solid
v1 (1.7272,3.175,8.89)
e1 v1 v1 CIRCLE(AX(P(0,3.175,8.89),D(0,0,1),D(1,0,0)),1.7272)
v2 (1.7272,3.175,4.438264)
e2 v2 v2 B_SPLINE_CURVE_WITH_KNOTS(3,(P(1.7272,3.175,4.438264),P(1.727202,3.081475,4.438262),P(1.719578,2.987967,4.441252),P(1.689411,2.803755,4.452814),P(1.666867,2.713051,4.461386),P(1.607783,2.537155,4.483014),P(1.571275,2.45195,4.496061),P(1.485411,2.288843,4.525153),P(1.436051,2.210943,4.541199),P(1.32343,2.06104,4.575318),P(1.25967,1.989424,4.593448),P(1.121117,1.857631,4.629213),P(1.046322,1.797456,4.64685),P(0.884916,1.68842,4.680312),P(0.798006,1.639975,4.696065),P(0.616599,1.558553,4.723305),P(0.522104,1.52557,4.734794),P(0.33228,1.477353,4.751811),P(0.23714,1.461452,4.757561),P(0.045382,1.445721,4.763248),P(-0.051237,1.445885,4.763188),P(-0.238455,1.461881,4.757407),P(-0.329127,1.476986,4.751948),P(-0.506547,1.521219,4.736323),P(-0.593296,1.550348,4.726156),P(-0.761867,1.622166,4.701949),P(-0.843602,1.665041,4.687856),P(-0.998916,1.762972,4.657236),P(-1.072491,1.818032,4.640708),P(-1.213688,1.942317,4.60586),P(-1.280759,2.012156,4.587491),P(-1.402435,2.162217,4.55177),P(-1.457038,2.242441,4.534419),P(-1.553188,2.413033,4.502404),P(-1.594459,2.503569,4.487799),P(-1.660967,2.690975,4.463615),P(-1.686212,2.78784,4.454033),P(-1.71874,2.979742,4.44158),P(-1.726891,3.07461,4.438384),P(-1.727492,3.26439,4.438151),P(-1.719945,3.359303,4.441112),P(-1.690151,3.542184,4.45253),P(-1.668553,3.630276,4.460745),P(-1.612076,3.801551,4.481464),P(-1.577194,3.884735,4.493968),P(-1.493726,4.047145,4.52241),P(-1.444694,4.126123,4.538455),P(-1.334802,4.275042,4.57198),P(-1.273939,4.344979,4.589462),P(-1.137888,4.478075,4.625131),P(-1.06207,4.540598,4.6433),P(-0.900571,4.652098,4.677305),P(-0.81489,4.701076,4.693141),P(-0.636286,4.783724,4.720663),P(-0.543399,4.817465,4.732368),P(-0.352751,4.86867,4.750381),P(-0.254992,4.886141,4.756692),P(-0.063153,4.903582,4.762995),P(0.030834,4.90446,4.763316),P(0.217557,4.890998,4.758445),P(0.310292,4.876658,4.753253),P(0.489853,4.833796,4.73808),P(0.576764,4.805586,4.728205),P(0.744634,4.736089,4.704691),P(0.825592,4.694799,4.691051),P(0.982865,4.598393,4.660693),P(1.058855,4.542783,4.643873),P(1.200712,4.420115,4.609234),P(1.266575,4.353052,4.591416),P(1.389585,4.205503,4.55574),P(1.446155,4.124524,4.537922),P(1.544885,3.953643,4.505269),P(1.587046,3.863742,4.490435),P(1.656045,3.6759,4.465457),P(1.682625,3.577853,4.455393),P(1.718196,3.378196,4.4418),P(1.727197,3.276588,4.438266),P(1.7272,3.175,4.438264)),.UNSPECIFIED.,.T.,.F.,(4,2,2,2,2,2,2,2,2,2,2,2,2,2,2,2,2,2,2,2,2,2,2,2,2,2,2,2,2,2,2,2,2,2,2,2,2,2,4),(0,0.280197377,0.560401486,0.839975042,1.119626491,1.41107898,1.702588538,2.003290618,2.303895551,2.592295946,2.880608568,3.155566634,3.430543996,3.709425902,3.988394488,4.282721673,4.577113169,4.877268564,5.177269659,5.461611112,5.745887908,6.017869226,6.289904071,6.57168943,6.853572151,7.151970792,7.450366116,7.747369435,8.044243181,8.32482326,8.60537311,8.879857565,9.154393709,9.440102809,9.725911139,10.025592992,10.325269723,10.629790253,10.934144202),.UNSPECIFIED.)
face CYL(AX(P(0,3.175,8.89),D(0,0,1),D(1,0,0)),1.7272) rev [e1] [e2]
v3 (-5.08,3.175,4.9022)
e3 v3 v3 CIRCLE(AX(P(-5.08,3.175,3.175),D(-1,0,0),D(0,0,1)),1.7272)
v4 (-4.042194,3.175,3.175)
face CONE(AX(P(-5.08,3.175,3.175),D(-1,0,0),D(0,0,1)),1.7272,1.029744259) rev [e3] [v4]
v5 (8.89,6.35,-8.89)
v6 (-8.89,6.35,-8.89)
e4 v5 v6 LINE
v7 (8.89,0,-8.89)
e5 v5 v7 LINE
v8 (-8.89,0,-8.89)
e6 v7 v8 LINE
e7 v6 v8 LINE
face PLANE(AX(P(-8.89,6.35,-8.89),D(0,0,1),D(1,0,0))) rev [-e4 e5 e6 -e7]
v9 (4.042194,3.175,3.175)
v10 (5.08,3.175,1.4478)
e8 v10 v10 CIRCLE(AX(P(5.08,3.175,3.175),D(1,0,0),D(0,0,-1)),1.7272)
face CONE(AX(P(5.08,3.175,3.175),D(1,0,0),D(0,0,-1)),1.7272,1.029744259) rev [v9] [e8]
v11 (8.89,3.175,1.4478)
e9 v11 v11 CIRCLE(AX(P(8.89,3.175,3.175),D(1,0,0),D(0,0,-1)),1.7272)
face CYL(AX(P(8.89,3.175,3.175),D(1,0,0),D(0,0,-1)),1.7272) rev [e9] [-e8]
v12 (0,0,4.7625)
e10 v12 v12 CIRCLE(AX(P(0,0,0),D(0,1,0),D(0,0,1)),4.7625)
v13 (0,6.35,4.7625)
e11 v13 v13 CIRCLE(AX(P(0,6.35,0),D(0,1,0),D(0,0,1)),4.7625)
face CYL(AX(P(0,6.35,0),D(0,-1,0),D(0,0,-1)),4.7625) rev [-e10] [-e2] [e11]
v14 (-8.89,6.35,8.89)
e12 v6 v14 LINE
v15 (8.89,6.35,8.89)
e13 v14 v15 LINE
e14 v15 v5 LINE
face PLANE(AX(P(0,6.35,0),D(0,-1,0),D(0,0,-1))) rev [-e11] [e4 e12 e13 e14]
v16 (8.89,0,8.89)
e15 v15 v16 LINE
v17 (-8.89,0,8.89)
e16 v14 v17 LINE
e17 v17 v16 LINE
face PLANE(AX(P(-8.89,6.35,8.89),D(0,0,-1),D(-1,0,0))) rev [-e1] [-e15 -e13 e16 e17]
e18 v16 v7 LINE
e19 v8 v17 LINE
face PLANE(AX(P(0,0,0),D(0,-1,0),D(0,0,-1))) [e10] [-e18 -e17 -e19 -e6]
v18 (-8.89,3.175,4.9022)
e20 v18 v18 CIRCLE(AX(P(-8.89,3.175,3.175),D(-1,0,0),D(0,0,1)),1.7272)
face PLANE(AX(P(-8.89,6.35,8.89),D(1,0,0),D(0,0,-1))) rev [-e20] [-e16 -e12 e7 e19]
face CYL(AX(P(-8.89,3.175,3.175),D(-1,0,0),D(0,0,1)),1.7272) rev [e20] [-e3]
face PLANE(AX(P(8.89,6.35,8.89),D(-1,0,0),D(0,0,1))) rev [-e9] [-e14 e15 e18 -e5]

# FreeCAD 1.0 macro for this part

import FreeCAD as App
import Part
import Sketcher
from FreeCAD import Vector
Q = App.Units.Quantity

doc = App.newDocument("Part")
body = doc.addObject("PartDesign::Body", "Body")

# Sketch on XZ plane
sketch1 = body.newObject("Sketcher::SketchObject", "Sketch")
sketch1.AttachmentSupport = (doc.getObject("XZ_Plane"), [""])
sketch1.MapMode = "FlatFace"
sketch1.addGeometry([
    Part.LineSegment(Vector(-8.89, -8.89, 0), Vector(-8.89, 8.89, 0)),  # 0
    Part.LineSegment(Vector(-8.89, 8.89, 0), Vector(8.89, 8.89, 0)),  # 1
    Part.LineSegment(Vector(8.89, 8.89, 0), Vector(8.89, -8.89, 0)),  # 2
    Part.LineSegment(Vector(8.89, -8.89, 0), Vector(-8.89, -8.89, 0)),  # 3
    Part.Circle(Vector(0, 0, 0), Vector(0, 0, 1), 4.7625),  # 4
], False)
sketch1.addConstraint([
    Sketcher.Constraint("Coincident", 0, 2, 1, 1),
    Sketcher.Constraint("Coincident", 1, 2, 2, 1),
    Sketcher.Constraint("Coincident", 2, 2, 3, 1),
    Sketcher.Constraint("Coincident", 3, 2, 0, 1),
    Sketcher.Constraint("Vertical", 0),
    Sketcher.Constraint("Horizontal", 1),
    Sketcher.Constraint("Vertical", 2),
    Sketcher.Constraint("Horizontal", 3),
    Sketcher.Constraint("Coincident", 4, 3, -1, 1),
    Sketcher.Constraint("Symmetric", 0, 2, 2, 2, -1, 1),
    Sketcher.Constraint("Equal", 3, 0),
    Sketcher.Constraint("Diameter", 4, Q("0.375 in")),
    Sketcher.Constraint("DistanceX", 1, 1, 1, 2, Q("0.7 in")),
])
pad1 = body.newObject("PartDesign::Pad", "Pad")
pad1.Profile = sketch1
pad1.Length = Q("0.25 in")
pad1.Reversed = True

# Sketch on XY plane
sketch2 = body.newObject("Sketcher::SketchObject", "Sketch001")
sketch2.AttachmentSupport = (doc.getObject("XY_Plane"), [""])
sketch2.MapMode = "FlatFace"
sketch2.AttachmentOffset = App.Placement(Vector(0, 0, 0.35 * 25.4), App.Rotation())
sketch2.addGeometry(Part.Circle(Vector(0, 3.175, 0), Vector(0, 0, 1), 1.7272), False)
sketch2.addConstraint([
    Sketcher.Constraint("PointOnObject", 0, 3, -2),
    Sketcher.Constraint("Diameter", 0, Q("0.136 in")),
    Sketcher.Constraint("DistanceY", -1, 1, 0, 3, Q("0.125 in")),
])
doc.recompute()
hole = body.newObject("PartDesign::Hole", "Hole")
hole.Profile = sketch2
hole.ThreadType = "None"
hole.Diameter = Q("0.136 in")
hole.DepthType = "Dimension"
hole.Depth = 9.630194
hole.DrillPoint = "Angled"
hole.DrillPointAngle = 118

# Sketch on XZ plane
sketch3 = body.newObject("Sketcher::SketchObject", "Sketch002")
sketch3.AttachmentSupport = (doc.getObject("XZ_Plane"), [""])
sketch3.MapMode = "FlatFace"
sketch3.AttachmentOffset = App.Placement(Vector(0, 0, -0.125 * 25.4), App.Rotation())
sketch3.addGeometry([
    Part.LineSegment(Vector(-4.042194, 3.175, 0), Vector(-8.89, 3.175, 0)),
    Part.LineSegment(Vector(-8.89, 3.175, 0), Vector(-8.89, 4.9022, 0)),
    Part.LineSegment(Vector(-8.89, 4.9022, 0), Vector(-5.08, 4.9022, 0)),
    Part.LineSegment(Vector(-5.08, 4.9022, 0), Vector(-4.042194, 3.175, 0)),
], False)
sketch3.addGeometry(Part.LineSegment(Vector(-8.89, 3.175, 0), Vector(-4.042194, 3.175, 0)), True)  # axis
sketch3.addConstraint([
    Sketcher.Constraint("Coincident", 0, 2, 1, 1),
    Sketcher.Constraint("Coincident", 1, 2, 2, 1),
    Sketcher.Constraint("Coincident", 2, 2, 3, 1),
    Sketcher.Constraint("Coincident", 3, 2, 0, 1),
    Sketcher.Constraint("Horizontal", 0),
    Sketcher.Constraint("Vertical", 1),
    Sketcher.Constraint("Horizontal", 2),
    Sketcher.Constraint("Horizontal", 4),
    Sketcher.Constraint("Coincident", 4, 1, 0, 2),
    Sketcher.Constraint("Equal", 0, 4),
    Sketcher.Constraint("Angle", 3, Q("-59 deg")),
    Sketcher.Constraint("DistanceX", 2, 1, 2, 2, Q("0.15 in")),
    Sketcher.Constraint("DistanceX", 2, 2, -1, 1, Q("0.2 in")),
    Sketcher.Constraint("DistanceY", 1, 1, 1, 2, Q("0.068 in")),
    Sketcher.Constraint("DistanceY", -1, 1, 0, 2, Q("0.125 in")),
])
groove = body.newObject("PartDesign::Groove", "Groove")
groove.Profile = sketch3
groove.ReferenceAxis = (sketch3, ["Axis0"])
groove.Angle = 360
doc.recompute()

mirrored = body.newObject("PartDesign::Mirrored", "Mirrored")
mirrored.Originals = [groove]
mirrored.MirrorPlane = (doc.getObject("YZ_Plane"), [""])
body.Tip = mirrored

doc.recompute()
